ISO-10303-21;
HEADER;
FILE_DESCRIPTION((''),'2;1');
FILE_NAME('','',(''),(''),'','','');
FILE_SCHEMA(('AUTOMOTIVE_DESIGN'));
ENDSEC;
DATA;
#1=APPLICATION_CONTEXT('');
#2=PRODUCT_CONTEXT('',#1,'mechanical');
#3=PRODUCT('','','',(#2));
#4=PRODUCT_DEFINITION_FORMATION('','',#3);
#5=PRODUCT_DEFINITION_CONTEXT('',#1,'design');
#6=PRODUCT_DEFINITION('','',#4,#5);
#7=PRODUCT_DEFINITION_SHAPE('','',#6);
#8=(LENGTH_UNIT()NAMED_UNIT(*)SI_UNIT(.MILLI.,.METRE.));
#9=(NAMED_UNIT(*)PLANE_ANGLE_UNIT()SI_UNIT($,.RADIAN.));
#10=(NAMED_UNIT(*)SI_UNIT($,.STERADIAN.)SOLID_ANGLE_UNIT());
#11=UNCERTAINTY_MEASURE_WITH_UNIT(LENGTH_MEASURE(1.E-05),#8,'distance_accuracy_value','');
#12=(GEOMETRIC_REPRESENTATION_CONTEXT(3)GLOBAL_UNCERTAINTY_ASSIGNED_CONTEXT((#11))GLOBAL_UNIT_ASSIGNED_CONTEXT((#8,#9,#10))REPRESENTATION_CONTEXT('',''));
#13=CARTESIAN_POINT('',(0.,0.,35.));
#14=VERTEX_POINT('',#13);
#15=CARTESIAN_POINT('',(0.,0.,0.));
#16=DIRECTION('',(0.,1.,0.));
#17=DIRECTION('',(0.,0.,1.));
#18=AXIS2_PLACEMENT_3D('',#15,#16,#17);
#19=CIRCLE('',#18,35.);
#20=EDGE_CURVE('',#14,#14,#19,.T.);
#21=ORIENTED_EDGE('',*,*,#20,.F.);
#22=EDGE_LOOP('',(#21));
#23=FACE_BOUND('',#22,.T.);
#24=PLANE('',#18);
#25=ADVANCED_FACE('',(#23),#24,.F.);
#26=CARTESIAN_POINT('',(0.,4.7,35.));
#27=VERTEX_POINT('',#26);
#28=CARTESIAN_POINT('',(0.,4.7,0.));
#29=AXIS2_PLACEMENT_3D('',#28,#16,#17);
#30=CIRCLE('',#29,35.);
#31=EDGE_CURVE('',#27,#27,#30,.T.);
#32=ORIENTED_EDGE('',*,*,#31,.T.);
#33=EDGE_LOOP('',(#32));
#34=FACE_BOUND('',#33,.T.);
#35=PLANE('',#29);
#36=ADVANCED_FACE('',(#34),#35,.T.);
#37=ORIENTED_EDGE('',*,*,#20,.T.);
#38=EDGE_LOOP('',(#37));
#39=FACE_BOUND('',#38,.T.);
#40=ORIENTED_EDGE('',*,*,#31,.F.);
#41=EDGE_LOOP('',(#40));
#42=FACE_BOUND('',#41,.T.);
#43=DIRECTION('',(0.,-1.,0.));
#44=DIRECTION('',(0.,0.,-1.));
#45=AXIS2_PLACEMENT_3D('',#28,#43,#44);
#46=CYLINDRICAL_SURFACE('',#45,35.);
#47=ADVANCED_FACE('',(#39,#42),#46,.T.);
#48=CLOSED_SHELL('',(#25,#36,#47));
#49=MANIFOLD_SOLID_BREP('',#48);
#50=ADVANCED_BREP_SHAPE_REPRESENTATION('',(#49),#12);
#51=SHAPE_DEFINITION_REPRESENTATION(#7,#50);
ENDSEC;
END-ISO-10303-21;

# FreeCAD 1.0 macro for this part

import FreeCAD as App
import Part
import Sketcher
Q = App.Units.Quantity

doc = App.newDocument("Part")
body = doc.addObject("PartDesign::Body", "Body")

sketch1 = body.newObject("Sketcher::SketchObject", "Sketch")
sketch1.AttachmentSupport = (doc.getObject("XZ_Plane"), [""])
sketch1.MapMode = "FlatFace"
sketch1.addGeometry(Part.Circle(App.Vector(0, 0, 0), App.Vector(0, 0, 1), 35), False)
sketch1.addConstraint(Sketcher.Constraint("Coincident", 0, 3, -1, 1))
sketch1.addConstraint(Sketcher.Constraint("Diameter", 0, Q("70 mm")))
pad1 = body.newObject("PartDesign::Pad", "Pad")
pad1.Profile = sketch1
pad1.Length = 4.7
pad1.Reversed = True

doc.recompute()
